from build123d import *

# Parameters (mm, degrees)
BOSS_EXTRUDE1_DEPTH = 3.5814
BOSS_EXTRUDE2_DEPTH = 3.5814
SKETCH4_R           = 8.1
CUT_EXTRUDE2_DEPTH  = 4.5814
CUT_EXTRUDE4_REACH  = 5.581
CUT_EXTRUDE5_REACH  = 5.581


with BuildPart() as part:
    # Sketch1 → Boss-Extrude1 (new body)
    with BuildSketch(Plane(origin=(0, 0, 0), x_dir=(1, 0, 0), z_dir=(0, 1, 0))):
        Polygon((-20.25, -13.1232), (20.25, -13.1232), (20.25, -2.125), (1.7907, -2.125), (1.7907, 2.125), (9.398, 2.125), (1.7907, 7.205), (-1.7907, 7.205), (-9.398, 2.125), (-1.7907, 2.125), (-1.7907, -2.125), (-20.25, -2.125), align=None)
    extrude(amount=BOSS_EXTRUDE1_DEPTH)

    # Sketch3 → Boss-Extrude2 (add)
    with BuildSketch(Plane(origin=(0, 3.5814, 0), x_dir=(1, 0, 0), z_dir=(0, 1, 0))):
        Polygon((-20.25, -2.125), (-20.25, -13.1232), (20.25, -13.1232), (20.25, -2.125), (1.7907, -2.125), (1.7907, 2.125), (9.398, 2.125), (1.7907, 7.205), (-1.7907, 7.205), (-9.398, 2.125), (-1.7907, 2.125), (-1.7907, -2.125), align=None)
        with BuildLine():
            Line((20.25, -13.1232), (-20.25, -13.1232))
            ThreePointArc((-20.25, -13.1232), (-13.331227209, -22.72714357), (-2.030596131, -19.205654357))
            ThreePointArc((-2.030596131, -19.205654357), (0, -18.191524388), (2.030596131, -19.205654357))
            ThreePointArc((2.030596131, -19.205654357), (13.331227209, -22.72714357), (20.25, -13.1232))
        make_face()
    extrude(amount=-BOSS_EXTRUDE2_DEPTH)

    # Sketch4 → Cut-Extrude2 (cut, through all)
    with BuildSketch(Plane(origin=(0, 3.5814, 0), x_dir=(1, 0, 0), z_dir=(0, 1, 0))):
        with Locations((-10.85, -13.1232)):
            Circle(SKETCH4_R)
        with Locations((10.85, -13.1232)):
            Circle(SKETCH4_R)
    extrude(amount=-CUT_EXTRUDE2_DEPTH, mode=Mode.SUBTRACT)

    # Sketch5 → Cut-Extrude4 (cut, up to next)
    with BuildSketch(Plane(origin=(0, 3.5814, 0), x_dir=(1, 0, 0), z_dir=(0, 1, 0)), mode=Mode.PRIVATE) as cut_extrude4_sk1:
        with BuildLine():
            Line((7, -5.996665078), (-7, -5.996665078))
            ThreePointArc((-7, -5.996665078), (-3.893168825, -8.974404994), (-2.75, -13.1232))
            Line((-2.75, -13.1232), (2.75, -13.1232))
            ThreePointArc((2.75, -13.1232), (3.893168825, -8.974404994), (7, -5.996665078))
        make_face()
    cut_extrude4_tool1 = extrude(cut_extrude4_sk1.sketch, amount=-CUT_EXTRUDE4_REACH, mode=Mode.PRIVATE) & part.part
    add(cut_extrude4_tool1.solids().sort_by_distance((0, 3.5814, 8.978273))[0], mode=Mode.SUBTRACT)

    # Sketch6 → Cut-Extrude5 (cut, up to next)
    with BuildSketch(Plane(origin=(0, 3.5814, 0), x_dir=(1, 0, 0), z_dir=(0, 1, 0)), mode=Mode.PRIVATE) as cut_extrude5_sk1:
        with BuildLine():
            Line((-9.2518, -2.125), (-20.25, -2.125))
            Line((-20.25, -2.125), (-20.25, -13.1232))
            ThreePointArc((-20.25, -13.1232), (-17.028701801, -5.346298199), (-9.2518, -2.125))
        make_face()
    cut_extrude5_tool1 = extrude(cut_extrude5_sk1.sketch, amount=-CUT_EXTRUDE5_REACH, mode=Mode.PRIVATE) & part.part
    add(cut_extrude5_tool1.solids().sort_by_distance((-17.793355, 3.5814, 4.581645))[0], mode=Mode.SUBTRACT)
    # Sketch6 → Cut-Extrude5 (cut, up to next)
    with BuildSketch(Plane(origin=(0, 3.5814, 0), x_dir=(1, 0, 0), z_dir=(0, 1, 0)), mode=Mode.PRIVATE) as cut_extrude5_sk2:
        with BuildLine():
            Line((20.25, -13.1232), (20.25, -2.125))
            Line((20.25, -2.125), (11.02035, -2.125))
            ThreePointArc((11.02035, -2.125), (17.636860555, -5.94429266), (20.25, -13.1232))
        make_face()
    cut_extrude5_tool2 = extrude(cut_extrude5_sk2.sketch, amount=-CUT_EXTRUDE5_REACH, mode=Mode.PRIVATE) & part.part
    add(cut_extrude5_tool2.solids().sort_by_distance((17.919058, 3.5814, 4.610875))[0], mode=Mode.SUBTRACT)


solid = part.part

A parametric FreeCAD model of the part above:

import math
import FreeCAD as App
import Part
import Sketcher
from FreeCAD import Vector

doc = App.newDocument("Part")
body = doc.addObject("PartDesign::Body", "Body")

# Sketch on XZ plane
sketch1 = body.newObject("Sketcher::SketchObject", "Sketch")
sketch1.AttachmentSupport = (doc.getObject("XZ_Plane"), [""])
sketch1.MapMode = "FlatFace"
sketch1.addGeometry(Part.LineSegment(Vector(-20.25, 13.1232, 0), Vector(20.25, 13.1232, 0)), False)
sketch1.addGeometry(Part.LineSegment(Vector(20.25, 13.1232, 0), Vector(20.25, 2.125, 0)), False)
sketch1.addGeometry(Part.LineSegment(Vector(20.25, 2.125, 0), Vector(1.7907, 2.125, 0)), False)
sketch1.addGeometry(Part.LineSegment(Vector(1.7907, 2.125, 0), Vector(1.7907, -2.125, 0)), False)
sketch1.addGeometry(Part.LineSegment(Vector(1.7907, -2.125, 0), Vector(9.398, -2.125, 0)), False)
sketch1.addGeometry(Part.LineSegment(Vector(9.398, -2.125, 0), Vector(1.7907, -7.205, 0)), False)
sketch1.addGeometry(Part.LineSegment(Vector(1.7907, -7.205, 0), Vector(-1.7907, -7.205, 0)), False)
sketch1.addGeometry(Part.LineSegment(Vector(-1.7907, -7.205, 0), Vector(-9.398, -2.125, 0)), False)
sketch1.addGeometry(Part.LineSegment(Vector(-9.398, -2.125, 0), Vector(-1.7907, -2.125, 0)), False)
sketch1.addGeometry(Part.LineSegment(Vector(-1.7907, -2.125, 0), Vector(-1.7907, 2.125, 0)), False)
sketch1.addGeometry(Part.LineSegment(Vector(-1.7907, 2.125, 0), Vector(-20.25, 2.125, 0)), False)
sketch1.addGeometry(Part.LineSegment(Vector(-20.25, 2.125, 0), Vector(-20.25, 13.1232, 0)), False)
sketch1.addConstraint(Sketcher.Constraint("Coincident", 0, 2, 1, 1))
sketch1.addConstraint(Sketcher.Constraint("Coincident", 1, 2, 2, 1))
sketch1.addConstraint(Sketcher.Constraint("Coincident", 2, 2, 3, 1))
sketch1.addConstraint(Sketcher.Constraint("Coincident", 3, 2, 4, 1))
sketch1.addConstraint(Sketcher.Constraint("Coincident", 4, 2, 5, 1))
sketch1.addConstraint(Sketcher.Constraint("Coincident", 5, 2, 6, 1))
sketch1.addConstraint(Sketcher.Constraint("Coincident", 6, 2, 7, 1))
sketch1.addConstraint(Sketcher.Constraint("Coincident", 7, 2, 8, 1))
sketch1.addConstraint(Sketcher.Constraint("Coincident", 8, 2, 9, 1))
sketch1.addConstraint(Sketcher.Constraint("Coincident", 9, 2, 10, 1))
sketch1.addConstraint(Sketcher.Constraint("Coincident", 10, 2, 11, 1))
sketch1.addConstraint(Sketcher.Constraint("Coincident", 11, 2, 0, 1))
sketch1.addConstraint(Sketcher.Constraint("Horizontal", 0))
sketch1.addConstraint(Sketcher.Constraint("Vertical", 1))
sketch1.addConstraint(Sketcher.Constraint("Horizontal", 2))
sketch1.addConstraint(Sketcher.Constraint("Vertical", 3))
sketch1.addConstraint(Sketcher.Constraint("Horizontal", 4))
sketch1.addConstraint(Sketcher.Constraint("Horizontal", 6))
sketch1.addConstraint(Sketcher.Constraint("Horizontal", 8))
sketch1.addConstraint(Sketcher.Constraint("Vertical", 9))
sketch1.addConstraint(Sketcher.Constraint("Horizontal", 10))
sketch1.addConstraint(Sketcher.Constraint("Vertical", 11))
sketch1.addConstraint(Sketcher.Constraint("Symmetric", 2, 2, 8, 2, -1, 1))
sketch1.addConstraint(Sketcher.Constraint("Symmetric", 4, 2, 7, 2, -2))
sketch1.addConstraint(Sketcher.Constraint("Symmetric", 1, 2, 10, 2, -2))
sketch1.addConstraint(Sketcher.Constraint("Vertical", 3, 2, 5, 2))
sketch1.addConstraint(Sketcher.Constraint("Vertical", 6, 2, 8, 2))
sketch1.addConstraint(Sketcher.Constraint("DistanceX", 0, 1, 0, 2, 40.5))
sketch1.addConstraint(Sketcher.Constraint("DistanceY", 3, 2, 3, 1, 4.25))
sketch1.addConstraint(Sketcher.Constraint("DistanceY", 5, 2, 3, 2, 5.08))
sketch1.addConstraint(Sketcher.Constraint("DistanceX", 2, 2, 2, 1, 18.4593))
sketch1.addConstraint(Sketcher.Constraint("DistanceX", 4, 1, 4, 2, 7.6073))
sketch1.addConstraint(Sketcher.Constraint("DistanceY", 1, 2, 1, 1, 10.9982))
pad1 = body.newObject("PartDesign::Pad", "Pad")
pad1.Profile = sketch1
pad1.Length = 3.5814
pad1.Reversed = True

# Sketch on XZ plane
sketch2 = body.newObject("Sketcher::SketchObject", "Sketch001")
sketch2.AttachmentSupport = (doc.getObject("XZ_Plane"), [""])
sketch2.MapMode = "FlatFace"
sketch2.AttachmentOffset = App.Placement(Vector(0, 0, -3.5814), App.Rotation())
sketch2.addGeometry(Part.LineSegment(Vector(-20.25, 2.125, 0), Vector(-20.25, 13.1232, 0)), False)
sketch2.addGeometry(Part.ArcOfCircle(Part.Circle(Vector(-10.125, 13.1232, 0), Vector(0, 0, 1), 10.125), math.radians(36.922645), math.radians(180)), False)
sketch2.addGeometry(Part.ArcOfCircle(Part.Circle(Vector(0, 20.731524, 0), Vector(0, 0, 1), 2.54), math.radians(-143.077355), math.radians(-36.922645)), False)
sketch2.addGeometry(Part.ArcOfCircle(Part.Circle(Vector(10.125, 13.1232, 0), Vector(0, 0, 1), 10.125), math.radians(0), math.radians(143.077355)), False)
sketch2.addGeometry(Part.LineSegment(Vector(20.25, 13.1232, 0), Vector(20.25, 2.125, 0)), False)
sketch2.addGeometry(Part.LineSegment(Vector(20.25, 2.125, 0), Vector(1.7907, 2.125, 0)), False)
sketch2.addGeometry(Part.LineSegment(Vector(1.7907, 2.125, 0), Vector(1.7907, -2.125, 0)), False)
sketch2.addGeometry(Part.LineSegment(Vector(1.7907, -2.125, 0), Vector(9.398, -2.125, 0)), False)
sketch2.addGeometry(Part.LineSegment(Vector(9.398, -2.125, 0), Vector(1.7907, -7.205, 0)), False)
sketch2.addGeometry(Part.LineSegment(Vector(1.7907, -7.205, 0), Vector(-1.7907, -7.205, 0)), False)
sketch2.addGeometry(Part.LineSegment(Vector(-1.7907, -7.205, 0), Vector(-9.398, -2.125, 0)), False)
sketch2.addGeometry(Part.LineSegment(Vector(-9.398, -2.125, 0), Vector(-1.7907, -2.125, 0)), False)
sketch2.addGeometry(Part.LineSegment(Vector(-1.7907, -2.125, 0), Vector(-1.7907, 2.125, 0)), False)
sketch2.addGeometry(Part.LineSegment(Vector(-1.7907, 2.125, 0), Vector(-20.25, 2.125, 0)), False)
sketch2.addConstraint(Sketcher.Constraint("Tangent", 0, 2, 1, 2))
sketch2.addConstraint(Sketcher.Constraint("Tangent", 1, 1, 2, 1))
sketch2.addConstraint(Sketcher.Constraint("Tangent", 2, 2, 3, 2))
sketch2.addConstraint(Sketcher.Constraint("Tangent", 3, 1, 4, 1))
sketch2.addConstraint(Sketcher.Constraint("Coincident", 4, 2, 5, 1))
sketch2.addConstraint(Sketcher.Constraint("Coincident", 5, 2, 6, 1))
sketch2.addConstraint(Sketcher.Constraint("Coincident", 6, 2, 7, 1))
sketch2.addConstraint(Sketcher.Constraint("Coincident", 7, 2, 8, 1))
sketch2.addConstraint(Sketcher.Constraint("Coincident", 8, 2, 9, 1))
sketch2.addConstraint(Sketcher.Constraint("Coincident", 9, 2, 10, 1))
sketch2.addConstraint(Sketcher.Constraint("Coincident", 10, 2, 11, 1))
sketch2.addConstraint(Sketcher.Constraint("Coincident", 11, 2, 12, 1))
sketch2.addConstraint(Sketcher.Constraint("Coincident", 12, 2, 13, 1))
sketch2.addConstraint(Sketcher.Constraint("Coincident", 13, 2, 0, 1))
sketch2.addConstraint(Sketcher.Constraint("Vertical", 0))
sketch2.addConstraint(Sketcher.Constraint("Vertical", 4))
sketch2.addConstraint(Sketcher.Constraint("Horizontal", 5))
sketch2.addConstraint(Sketcher.Constraint("Vertical", 6))
sketch2.addConstraint(Sketcher.Constraint("Horizontal", 7))
sketch2.addConstraint(Sketcher.Constraint("Horizontal", 9))
sketch2.addConstraint(Sketcher.Constraint("Horizontal", 11))
sketch2.addConstraint(Sketcher.Constraint("Vertical", 12))
sketch2.addConstraint(Sketcher.Constraint("Horizontal", 13))
sketch2.addConstraint(Sketcher.Constraint("Equal", 1, 3))
sketch2.addConstraint(Sketcher.Constraint("Symmetric", 5, 2, 11, 2, -1, 1))
sketch2.addConstraint(Sketcher.Constraint("Symmetric", 1, 3, 3, 3, -2))
sketch2.addConstraint(Sketcher.Constraint("Symmetric", 7, 2, 10, 2, -2))
sketch2.addConstraint(Sketcher.Constraint("Horizontal", 5, 2, 12, 2))
sketch2.addConstraint(Sketcher.Constraint("Vertical", 6, 2, 8, 2))
sketch2.addConstraint(Sketcher.Constraint("Vertical", 9, 2, 11, 2))
sketch2.addConstraint(Sketcher.Constraint("Radius", 2, 2.54))
sketch2.addConstraint(Sketcher.Constraint("Radius", 1, 10.125))
sketch2.addConstraint(Sketcher.Constraint("DistanceY", 6, 2, 6, 1, 4.25))
sketch2.addConstraint(Sketcher.Constraint("DistanceX", 0, 2, -1, 1, 20.25))
sketch2.addConstraint(Sketcher.Constraint("DistanceY", 8, 2, 6, 2, 5.08))
sketch2.addConstraint(Sketcher.Constraint("DistanceX", 5, 2, 5, 1, 18.4593))
sketch2.addConstraint(Sketcher.Constraint("DistanceX", 7, 1, 7, 2, 7.6073))
sketch2.addConstraint(Sketcher.Constraint("DistanceY", 0, 1, 0, 2, 10.9982))
pad2 = body.newObject("PartDesign::Pad", "Pad001")
pad2.Profile = sketch2
pad2.Length = 3.5814

# Sketch on XZ plane
sketch3 = body.newObject("Sketcher::SketchObject", "Sketch002")
sketch3.AttachmentSupport = (doc.getObject("XZ_Plane"), [""])
sketch3.MapMode = "FlatFace"
sketch3.AttachmentOffset = App.Placement(Vector(0, 0, -3.5814), App.Rotation())
sketch3.addGeometry(Part.Circle(Vector(-10.85, 13.1232, 0), Vector(0, 0, 1), 8.1), False)
sketch3.addGeometry(Part.Circle(Vector(10.85, 13.1232, 0), Vector(0, 0, 1), 8.1), False)
sketch3.addConstraint(Sketcher.Constraint("Equal", 0, 1))
sketch3.addConstraint(Sketcher.Constraint("Symmetric", 0, 3, 1, 3, -2))
sketch3.addConstraint(Sketcher.Constraint("Diameter", 0, 16.2))
sketch3.addConstraint(Sketcher.Constraint("DistanceX", 0, 3, 1, 3, 21.7))
sketch3.addConstraint(Sketcher.Constraint("DistanceY", -1, 1, 0, 3, 13.1232))
pocket1 = body.newObject("PartDesign::Pocket", "Pocket")
pocket1.Profile = sketch3
pocket1.Type = "ThroughAll"
pocket1.Reversed = True

# Sketch on XZ plane
sketch4 = body.newObject("Sketcher::SketchObject", "Sketch003")
sketch4.AttachmentSupport = (doc.getObject("XZ_Plane"), [""])
sketch4.MapMode = "FlatFace"
sketch4.AttachmentOffset = App.Placement(Vector(0, 0, -3.5814), App.Rotation())
sketch4.addGeometry(Part.LineSegment(Vector(7, 5.996665, 0), Vector(-7, 5.996665, 0)), False)
sketch4.addGeometry(Part.ArcOfCircle(Part.Circle(Vector(-10.85, 13.1232, 0), Vector(0, 0, 1), 8.1), math.radians(-61.620552), math.radians(0)), False)
sketch4.addGeometry(Part.LineSegment(Vector(-2.75, 13.1232, 0), Vector(2.75, 13.1232, 0)), False)
sketch4.addGeometry(Part.ArcOfCircle(Part.Circle(Vector(10.85, 13.1232, 0), Vector(0, 0, 1), 8.1), math.radians(180), math.radians(241.620552)), False)
sketch4.addConstraint(Sketcher.Constraint("Coincident", 0, 2, 1, 1))
sketch4.addConstraint(Sketcher.Constraint("Coincident", 1, 2, 2, 1))
sketch4.addConstraint(Sketcher.Constraint("Coincident", 2, 2, 3, 1))
sketch4.addConstraint(Sketcher.Constraint("Coincident", 3, 2, 0, 1))
sketch4.addConstraint(Sketcher.Constraint("Horizontal", 0))
sketch4.addConstraint(Sketcher.Constraint("Horizontal", 2))
sketch4.addConstraint(Sketcher.Constraint("Equal", 1, 3))
sketch4.addConstraint(Sketcher.Constraint("Symmetric", 1, 3, 3, 3, -2))
sketch4.addConstraint(Sketcher.Constraint("Horizontal", 3, 3, 1, 2))
sketch4.addConstraint(Sketcher.Constraint("Radius", 1, 8.1))
sketch4.addConstraint(Sketcher.Constraint("DistanceX", 0, 2, 0, 1, 14.0))
sketch4.addConstraint(Sketcher.Constraint("DistanceX", 2, 1, 2, 2, 5.5))
sketch4.addConstraint(Sketcher.Constraint("DistanceY", -1, 1, 1, 3, 13.1232))
pocket2 = body.newObject("PartDesign::Pocket", "Pocket001")
pocket2.Profile = sketch4
pocket2.Type = "UpToFirst"
pocket2.Reversed = True

# Sketch on XZ plane
sketch5 = body.newObject("Sketcher::SketchObject", "Sketch004")
sketch5.AttachmentSupport = (doc.getObject("XZ_Plane"), [""])
sketch5.MapMode = "FlatFace"
sketch5.AttachmentOffset = App.Placement(Vector(0, 0, -3.5814), App.Rotation())
sketch5.addGeometry(Part.LineSegment(Vector(-9.2518, 2.125, 0), Vector(-20.25, 2.125, 0)), False)
sketch5.addGeometry(Part.LineSegment(Vector(-20.25, 2.125, 0), Vector(-20.25, 13.1232, 0)), False)
sketch5.addGeometry(Part.ArcOfCircle(Part.Circle(Vector(-9.2518, 13.1232, 0), Vector(0, 0, 1), 10.9982), math.radians(180), math.radians(270)), False)
sketch5.addConstraint(Sketcher.Constraint("Coincident", 0, 2, 1, 1))
sketch5.addConstraint(Sketcher.Constraint("Tangent", 1, 2, 2, 1))
sketch5.addConstraint(Sketcher.Constraint("Tangent", 2, 2, 0, 1))
sketch5.addConstraint(Sketcher.Constraint("Horizontal", 0))
sketch5.addConstraint(Sketcher.Constraint("Vertical", 1))
sketch5.addConstraint(Sketcher.Constraint("Radius", 2, 10.9982))
sketch5.addConstraint(Sketcher.Constraint("DistanceX", 0, 2, -1, 1, 20.25))
sketch5.addConstraint(Sketcher.Constraint("DistanceY", -1, 1, 0, 2, 2.125))
pocket3 = body.newObject("PartDesign::Pocket", "Pocket002")
pocket3.Profile = sketch5
pocket3.Type = "UpToFirst"
pocket3.Reversed = True

# Sketch on XZ plane
sketch6 = body.newObject("Sketcher::SketchObject", "Sketch005")
sketch6.AttachmentSupport = (doc.getObject("XZ_Plane"), [""])
sketch6.MapMode = "FlatFace"
sketch6.AttachmentOffset = App.Placement(Vector(0, 0, -3.5814), App.Rotation())
sketch6.addGeometry(Part.LineSegment(Vector(20.25, 13.1232, 0), Vector(20.25, 2.125, 0)), False)
sketch6.addGeometry(Part.LineSegment(Vector(20.25, 2.125, 0), Vector(11.02035, 2.125, 0)), False)
sketch6.addGeometry(Part.ArcOfCircle(Part.Circle(Vector(9.082359, 13.1232, 0), Vector(0, 0, 1), 11.167641), math.radians(-80.006508), math.radians(0)), False)
sketch6.addConstraint(Sketcher.Constraint("Coincident", 0, 2, 1, 1))
sketch6.addConstraint(Sketcher.Constraint("Coincident", 1, 2, 2, 1))
sketch6.addConstraint(Sketcher.Constraint("Tangent", 2, 2, 0, 1))
sketch6.addConstraint(Sketcher.Constraint("Vertical", 0))
sketch6.addConstraint(Sketcher.Constraint("Horizontal", 1))
sketch6.addConstraint(Sketcher.Constraint("DistanceX", -1, 1, 0, 2, 20.25))
sketch6.addConstraint(Sketcher.Constraint("Radius", 2, 11.167641))
sketch6.addConstraint(Sketcher.Constraint("DistanceY", 0, 2, 0, 1, 10.9982))
sketch6.addConstraint(Sketcher.Constraint("DistanceY", -1, 1, 0, 2, 2.125))
pocket4 = body.newObject("PartDesign::Pocket", "Pocket003")
pocket4.Profile = sketch6
pocket4.Type = "UpToFirst"
pocket4.Reversed = True

doc.recompute()
